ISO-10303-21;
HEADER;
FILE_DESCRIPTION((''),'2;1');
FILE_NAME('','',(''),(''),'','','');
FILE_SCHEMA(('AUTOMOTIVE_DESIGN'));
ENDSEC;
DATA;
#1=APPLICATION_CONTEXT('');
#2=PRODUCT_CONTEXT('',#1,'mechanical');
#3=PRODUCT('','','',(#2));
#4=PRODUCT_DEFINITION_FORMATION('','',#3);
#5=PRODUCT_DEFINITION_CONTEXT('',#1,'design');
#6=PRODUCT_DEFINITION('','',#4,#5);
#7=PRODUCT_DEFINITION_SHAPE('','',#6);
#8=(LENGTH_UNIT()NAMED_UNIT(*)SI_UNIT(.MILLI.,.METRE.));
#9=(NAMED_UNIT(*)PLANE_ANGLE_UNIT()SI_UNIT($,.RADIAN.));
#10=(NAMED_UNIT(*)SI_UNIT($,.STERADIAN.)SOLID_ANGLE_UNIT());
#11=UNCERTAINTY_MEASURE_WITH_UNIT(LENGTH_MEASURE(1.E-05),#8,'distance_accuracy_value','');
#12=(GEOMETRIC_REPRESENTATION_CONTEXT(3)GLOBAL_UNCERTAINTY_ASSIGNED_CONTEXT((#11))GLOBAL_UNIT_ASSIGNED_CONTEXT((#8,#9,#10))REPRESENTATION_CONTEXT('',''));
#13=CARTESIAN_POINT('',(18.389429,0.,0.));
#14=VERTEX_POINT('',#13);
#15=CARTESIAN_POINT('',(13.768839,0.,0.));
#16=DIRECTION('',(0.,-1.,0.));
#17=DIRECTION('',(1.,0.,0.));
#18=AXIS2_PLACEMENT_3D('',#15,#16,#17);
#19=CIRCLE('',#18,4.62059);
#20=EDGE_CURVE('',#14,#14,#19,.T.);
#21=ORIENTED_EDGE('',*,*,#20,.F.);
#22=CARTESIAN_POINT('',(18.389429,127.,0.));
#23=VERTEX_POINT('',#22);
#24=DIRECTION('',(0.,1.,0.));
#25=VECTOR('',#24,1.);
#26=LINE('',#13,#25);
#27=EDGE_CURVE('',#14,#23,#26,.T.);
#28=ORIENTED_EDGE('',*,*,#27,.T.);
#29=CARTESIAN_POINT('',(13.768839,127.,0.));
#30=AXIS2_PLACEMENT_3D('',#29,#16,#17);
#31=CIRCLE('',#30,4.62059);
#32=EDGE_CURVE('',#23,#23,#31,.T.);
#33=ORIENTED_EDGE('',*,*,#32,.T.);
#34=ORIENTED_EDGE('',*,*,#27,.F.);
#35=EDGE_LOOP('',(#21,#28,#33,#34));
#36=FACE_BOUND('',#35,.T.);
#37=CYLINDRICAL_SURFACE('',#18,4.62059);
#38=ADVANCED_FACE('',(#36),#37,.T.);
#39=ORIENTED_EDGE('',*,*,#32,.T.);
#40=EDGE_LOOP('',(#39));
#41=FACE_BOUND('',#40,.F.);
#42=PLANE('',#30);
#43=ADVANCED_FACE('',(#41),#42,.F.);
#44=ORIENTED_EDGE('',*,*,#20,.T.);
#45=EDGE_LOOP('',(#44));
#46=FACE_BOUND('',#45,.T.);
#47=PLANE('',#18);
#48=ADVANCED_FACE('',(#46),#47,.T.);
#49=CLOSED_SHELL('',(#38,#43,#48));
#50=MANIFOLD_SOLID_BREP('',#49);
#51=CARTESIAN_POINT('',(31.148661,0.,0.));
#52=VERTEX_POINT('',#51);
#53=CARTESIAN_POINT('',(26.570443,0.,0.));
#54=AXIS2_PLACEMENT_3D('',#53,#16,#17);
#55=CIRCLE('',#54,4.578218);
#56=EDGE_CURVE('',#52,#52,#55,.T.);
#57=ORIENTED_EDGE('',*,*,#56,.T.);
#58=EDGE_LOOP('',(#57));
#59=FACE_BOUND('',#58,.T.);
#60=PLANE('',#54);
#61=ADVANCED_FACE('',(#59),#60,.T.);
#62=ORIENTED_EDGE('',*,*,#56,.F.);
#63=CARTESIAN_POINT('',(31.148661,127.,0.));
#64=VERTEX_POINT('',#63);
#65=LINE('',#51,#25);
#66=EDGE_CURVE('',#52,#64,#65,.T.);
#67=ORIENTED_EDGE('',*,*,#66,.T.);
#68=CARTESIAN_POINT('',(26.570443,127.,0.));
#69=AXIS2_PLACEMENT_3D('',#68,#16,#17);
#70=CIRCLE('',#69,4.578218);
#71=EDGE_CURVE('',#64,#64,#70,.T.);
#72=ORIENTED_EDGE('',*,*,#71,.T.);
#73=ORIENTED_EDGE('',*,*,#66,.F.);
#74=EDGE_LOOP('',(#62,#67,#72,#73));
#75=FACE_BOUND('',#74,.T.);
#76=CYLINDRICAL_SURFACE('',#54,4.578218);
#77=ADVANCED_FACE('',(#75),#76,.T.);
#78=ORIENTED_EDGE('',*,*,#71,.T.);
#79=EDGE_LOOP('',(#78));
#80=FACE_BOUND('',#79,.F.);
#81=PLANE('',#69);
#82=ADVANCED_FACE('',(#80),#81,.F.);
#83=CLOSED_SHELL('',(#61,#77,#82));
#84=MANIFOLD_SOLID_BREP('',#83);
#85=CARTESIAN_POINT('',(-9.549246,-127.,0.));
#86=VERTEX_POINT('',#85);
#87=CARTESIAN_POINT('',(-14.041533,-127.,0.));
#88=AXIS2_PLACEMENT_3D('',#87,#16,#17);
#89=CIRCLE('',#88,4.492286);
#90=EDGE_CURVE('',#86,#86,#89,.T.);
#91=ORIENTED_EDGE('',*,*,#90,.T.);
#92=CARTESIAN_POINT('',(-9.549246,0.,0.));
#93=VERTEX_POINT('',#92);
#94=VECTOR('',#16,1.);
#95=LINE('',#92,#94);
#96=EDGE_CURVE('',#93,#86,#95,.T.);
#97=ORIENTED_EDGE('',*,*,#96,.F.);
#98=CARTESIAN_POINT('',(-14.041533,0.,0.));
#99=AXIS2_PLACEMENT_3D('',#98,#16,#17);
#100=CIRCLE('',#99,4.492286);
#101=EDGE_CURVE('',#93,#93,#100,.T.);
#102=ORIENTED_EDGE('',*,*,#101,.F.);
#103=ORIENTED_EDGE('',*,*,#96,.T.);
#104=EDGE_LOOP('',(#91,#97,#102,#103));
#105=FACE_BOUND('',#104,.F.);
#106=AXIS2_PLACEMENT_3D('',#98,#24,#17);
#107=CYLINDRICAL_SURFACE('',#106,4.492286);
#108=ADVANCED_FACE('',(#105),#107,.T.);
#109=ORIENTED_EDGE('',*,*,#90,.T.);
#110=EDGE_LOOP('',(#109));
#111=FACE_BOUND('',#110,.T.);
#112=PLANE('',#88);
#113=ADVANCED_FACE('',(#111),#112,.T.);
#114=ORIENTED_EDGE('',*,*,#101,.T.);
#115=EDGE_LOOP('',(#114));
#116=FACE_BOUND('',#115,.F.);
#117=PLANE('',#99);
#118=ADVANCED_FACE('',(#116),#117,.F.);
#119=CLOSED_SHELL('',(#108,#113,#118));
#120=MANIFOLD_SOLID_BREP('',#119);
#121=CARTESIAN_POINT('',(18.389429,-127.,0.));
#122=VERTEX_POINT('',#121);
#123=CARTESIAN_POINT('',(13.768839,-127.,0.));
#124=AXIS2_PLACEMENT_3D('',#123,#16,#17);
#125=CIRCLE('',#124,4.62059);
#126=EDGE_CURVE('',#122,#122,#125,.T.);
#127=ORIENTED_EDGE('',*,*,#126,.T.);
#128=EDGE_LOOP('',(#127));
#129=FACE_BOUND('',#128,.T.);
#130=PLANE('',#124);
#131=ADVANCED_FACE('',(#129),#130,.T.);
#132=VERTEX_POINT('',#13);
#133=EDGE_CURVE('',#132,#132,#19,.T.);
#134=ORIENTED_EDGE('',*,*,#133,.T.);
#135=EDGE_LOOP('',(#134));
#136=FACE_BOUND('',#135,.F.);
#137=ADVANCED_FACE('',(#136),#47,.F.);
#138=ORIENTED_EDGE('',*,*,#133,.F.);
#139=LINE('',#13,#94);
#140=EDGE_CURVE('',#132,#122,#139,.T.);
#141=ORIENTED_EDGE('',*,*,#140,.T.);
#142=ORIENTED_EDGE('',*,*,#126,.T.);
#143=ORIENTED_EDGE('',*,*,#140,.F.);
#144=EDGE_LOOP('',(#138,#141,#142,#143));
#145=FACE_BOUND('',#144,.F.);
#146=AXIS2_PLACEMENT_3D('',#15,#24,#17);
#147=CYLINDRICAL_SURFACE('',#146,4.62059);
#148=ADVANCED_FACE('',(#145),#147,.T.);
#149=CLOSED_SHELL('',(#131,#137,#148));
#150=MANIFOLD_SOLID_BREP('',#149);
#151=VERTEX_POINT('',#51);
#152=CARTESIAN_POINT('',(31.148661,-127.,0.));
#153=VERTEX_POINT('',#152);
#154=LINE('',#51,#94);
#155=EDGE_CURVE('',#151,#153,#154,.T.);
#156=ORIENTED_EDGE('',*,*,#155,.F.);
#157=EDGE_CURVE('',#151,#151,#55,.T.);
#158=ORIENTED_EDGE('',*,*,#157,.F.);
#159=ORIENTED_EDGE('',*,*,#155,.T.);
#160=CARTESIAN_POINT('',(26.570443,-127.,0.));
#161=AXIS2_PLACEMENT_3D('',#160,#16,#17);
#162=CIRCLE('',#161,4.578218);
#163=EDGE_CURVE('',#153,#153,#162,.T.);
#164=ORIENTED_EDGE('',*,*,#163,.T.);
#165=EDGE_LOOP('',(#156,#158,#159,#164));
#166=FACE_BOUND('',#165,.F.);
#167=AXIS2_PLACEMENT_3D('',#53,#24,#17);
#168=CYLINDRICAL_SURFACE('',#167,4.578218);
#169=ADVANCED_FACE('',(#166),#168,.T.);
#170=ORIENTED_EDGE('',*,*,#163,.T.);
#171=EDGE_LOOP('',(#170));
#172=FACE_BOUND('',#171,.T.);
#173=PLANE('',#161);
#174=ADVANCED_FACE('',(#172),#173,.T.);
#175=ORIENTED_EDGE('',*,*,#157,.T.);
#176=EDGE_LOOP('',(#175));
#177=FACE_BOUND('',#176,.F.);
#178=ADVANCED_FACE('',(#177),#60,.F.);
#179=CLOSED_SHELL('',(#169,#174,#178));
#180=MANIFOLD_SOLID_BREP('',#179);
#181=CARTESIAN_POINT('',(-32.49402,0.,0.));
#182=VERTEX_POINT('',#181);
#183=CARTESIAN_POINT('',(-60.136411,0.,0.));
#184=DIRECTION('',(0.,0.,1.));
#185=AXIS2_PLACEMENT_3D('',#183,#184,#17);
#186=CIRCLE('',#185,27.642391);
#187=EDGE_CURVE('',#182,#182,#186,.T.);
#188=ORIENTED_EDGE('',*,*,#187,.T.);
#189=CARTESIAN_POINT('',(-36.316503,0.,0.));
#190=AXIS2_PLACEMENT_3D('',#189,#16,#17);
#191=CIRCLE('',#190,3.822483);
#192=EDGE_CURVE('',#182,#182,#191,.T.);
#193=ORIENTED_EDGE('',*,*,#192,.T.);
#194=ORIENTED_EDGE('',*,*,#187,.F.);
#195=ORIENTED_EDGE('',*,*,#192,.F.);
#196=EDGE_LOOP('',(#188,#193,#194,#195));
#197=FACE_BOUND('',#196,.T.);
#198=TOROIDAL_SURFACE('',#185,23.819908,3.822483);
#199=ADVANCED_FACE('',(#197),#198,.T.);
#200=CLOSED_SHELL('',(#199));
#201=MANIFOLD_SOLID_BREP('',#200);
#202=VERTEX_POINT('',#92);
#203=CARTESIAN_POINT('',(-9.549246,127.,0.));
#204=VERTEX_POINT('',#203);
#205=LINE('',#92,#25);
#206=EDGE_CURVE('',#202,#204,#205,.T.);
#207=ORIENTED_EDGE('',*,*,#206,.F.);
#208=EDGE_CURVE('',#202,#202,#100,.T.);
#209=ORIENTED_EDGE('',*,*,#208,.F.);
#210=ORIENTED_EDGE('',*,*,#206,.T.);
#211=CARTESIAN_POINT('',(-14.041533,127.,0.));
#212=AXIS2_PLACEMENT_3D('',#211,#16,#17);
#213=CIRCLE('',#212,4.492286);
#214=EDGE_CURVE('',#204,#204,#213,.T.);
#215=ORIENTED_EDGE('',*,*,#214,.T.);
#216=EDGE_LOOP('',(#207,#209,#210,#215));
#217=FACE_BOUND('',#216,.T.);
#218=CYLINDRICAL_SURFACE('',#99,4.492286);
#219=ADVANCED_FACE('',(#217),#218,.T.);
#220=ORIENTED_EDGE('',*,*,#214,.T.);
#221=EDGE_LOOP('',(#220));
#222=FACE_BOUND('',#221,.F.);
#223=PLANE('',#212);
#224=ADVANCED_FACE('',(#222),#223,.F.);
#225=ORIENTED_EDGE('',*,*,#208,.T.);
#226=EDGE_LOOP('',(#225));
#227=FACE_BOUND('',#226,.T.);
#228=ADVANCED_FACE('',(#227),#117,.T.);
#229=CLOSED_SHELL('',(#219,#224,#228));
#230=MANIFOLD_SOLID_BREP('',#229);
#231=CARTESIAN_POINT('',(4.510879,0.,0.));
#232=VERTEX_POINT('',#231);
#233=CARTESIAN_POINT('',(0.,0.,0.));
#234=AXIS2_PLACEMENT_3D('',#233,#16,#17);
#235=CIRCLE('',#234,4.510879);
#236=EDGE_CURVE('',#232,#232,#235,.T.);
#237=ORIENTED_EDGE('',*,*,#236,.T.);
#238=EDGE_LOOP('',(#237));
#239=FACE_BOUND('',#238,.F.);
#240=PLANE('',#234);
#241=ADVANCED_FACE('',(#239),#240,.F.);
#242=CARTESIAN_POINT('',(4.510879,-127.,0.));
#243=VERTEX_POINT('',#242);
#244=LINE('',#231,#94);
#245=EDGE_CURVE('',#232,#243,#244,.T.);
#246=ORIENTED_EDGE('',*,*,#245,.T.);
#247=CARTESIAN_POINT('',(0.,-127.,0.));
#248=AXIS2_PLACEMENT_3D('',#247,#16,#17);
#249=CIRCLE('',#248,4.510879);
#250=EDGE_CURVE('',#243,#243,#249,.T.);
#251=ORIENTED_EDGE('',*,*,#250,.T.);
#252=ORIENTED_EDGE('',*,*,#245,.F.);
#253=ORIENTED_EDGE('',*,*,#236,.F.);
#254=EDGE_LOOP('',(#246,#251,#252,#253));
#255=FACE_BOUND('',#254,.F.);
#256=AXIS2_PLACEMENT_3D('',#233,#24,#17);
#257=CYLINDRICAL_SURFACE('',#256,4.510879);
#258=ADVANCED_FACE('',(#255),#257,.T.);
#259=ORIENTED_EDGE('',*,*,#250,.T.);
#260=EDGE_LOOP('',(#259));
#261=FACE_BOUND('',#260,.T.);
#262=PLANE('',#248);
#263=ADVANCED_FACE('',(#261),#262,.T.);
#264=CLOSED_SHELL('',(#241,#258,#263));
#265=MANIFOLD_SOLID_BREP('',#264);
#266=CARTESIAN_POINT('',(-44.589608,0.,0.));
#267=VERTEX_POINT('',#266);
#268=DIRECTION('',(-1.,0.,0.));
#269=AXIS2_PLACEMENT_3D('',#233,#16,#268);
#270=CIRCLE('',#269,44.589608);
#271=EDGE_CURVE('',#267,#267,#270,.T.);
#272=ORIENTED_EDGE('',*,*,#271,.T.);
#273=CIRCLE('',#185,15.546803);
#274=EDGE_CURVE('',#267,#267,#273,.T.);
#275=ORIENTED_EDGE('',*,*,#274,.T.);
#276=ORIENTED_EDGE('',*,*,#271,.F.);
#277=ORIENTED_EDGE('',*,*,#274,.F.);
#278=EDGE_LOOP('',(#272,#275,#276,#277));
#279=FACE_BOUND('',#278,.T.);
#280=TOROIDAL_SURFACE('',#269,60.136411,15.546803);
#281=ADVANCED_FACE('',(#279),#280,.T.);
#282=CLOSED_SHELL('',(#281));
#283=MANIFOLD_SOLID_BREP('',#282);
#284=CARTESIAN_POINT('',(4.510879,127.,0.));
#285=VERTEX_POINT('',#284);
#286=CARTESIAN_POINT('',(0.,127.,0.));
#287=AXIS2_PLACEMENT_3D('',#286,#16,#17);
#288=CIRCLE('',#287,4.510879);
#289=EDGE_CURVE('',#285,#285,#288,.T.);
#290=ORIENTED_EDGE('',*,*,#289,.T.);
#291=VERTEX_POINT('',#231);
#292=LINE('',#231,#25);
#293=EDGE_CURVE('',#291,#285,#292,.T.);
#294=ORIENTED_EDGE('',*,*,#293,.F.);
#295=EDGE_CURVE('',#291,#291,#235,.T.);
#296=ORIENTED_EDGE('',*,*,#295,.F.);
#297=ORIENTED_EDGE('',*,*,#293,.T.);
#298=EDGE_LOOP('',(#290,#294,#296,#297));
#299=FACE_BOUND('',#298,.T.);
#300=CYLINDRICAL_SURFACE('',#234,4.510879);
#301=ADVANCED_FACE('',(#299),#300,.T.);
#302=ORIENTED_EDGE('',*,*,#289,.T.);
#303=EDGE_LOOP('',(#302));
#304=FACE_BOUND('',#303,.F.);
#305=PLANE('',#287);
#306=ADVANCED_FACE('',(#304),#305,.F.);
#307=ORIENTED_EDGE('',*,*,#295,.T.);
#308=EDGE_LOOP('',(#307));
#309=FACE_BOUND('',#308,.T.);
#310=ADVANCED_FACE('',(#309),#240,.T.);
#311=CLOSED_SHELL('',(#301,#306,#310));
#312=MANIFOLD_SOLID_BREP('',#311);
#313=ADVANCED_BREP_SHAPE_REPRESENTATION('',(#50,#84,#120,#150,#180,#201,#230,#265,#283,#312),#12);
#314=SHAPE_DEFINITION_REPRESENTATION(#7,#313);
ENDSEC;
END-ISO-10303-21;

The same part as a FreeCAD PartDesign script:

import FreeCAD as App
import Part
import Sketcher
from FreeCAD import Vector
Q = App.Units.Quantity

doc = App.newDocument("Part")
body = doc.addObject("PartDesign::Body", "Body")

# Sketch on XY plane
sketch1 = body.newObject("Sketcher::SketchObject", "Sketch")
sketch1.AttachmentSupport = (doc.getObject("XY_Plane"), [""])
sketch1.MapMode = "FlatFace"
sketch1.addGeometry(Part.Circle(Vector(-60, 0, 0), Vector(0, 0, 1), 16), False)
sketch1.addConstraint(Sketcher.Constraint("PointOnObject", 0, 3, -1))
sketch1.addConstraint(Sketcher.Constraint("Diameter", 0, 31.093607))
sketch1.addConstraint(Sketcher.Constraint("DistanceX", 0, 3, -1, 1, 60.136411))
revolution = body.newObject("PartDesign::Revolution", "Revolution")
revolution.Profile = sketch1
revolution.ReferenceAxis = (sketch1, ["V_Axis"])
revolution.Angle = 360
body2 = doc.addObject("PartDesign::Body", "Body001")

# Sketch on XZ plane
sketch2 = body2.newObject("Sketcher::SketchObject", "Sketch001")
sketch2.AttachmentSupport = (doc.getObject("XZ_Plane001"), [""])
sketch2.MapMode = "FlatFace"
sketch2.addGeometry(Part.Circle(Vector(-36.3, 0, 0), Vector(0, 0, 1), 3.8), False)
sketch2.addGeometry(Part.LineSegment(Vector(-60.1, 0, 0), Vector(-60.1, 10, 0)), True)  # axis
sketch2.addConstraint(Sketcher.Constraint("Vertical", 1))
sketch2.addConstraint(Sketcher.Constraint("PointOnObject", 0, 3, -1))
sketch2.addConstraint(Sketcher.Constraint("PointOnObject", 1, 1, -1))
sketch2.addConstraint(Sketcher.Constraint("Diameter", 0, 7.644966))
sketch2.addConstraint(Sketcher.Constraint("DistanceY", 1, 1, 1, 2, 10.0))
sketch2.addConstraint(Sketcher.Constraint("DistanceX", 1, 1, -1, 1, 60.136411))
sketch2.addConstraint(Sketcher.Constraint("DistanceX", 1, 1, 0, 3, 23.819908))
revolution2 = body2.newObject("PartDesign::Revolution", "Revolution001")
revolution2.Profile = sketch2
revolution2.ReferenceAxis = (sketch2, ["Axis0"])
revolution2.Angle = 360
body3 = doc.addObject("PartDesign::Body", "Body002")

# Sketch on XZ plane
sketch3 = body3.newObject("Sketcher::SketchObject", "Sketch002")
sketch3.AttachmentSupport = (doc.getObject("XZ_Plane002"), [""])
sketch3.MapMode = "FlatFace"
sketch3.addGeometry(Part.Circle(Vector(-14, 0, 0), Vector(0, 0, 1), 4.5), False)
sketch3.addConstraint(Sketcher.Constraint("PointOnObject", 0, 3, -1))
sketch3.addConstraint(Sketcher.Constraint("Diameter", 0, 8.984573))
sketch3.addConstraint(Sketcher.Constraint("DistanceX", 0, 3, -1, 1, 14.041533))
pad1 = body3.newObject("PartDesign::Pad", "Pad")
pad1.Profile = sketch3
pad1.Length = Q("5 in")
body4 = doc.addObject("PartDesign::Body", "Body003")

# Sketch on XZ plane
sketch4 = body4.newObject("Sketcher::SketchObject", "Sketch003")
sketch4.AttachmentSupport = (doc.getObject("XZ_Plane003"), [""])
sketch4.MapMode = "FlatFace"
sketch4.addGeometry(Part.Circle(Vector(0, 0, 0), Vector(0, 0, 1), 4.5), False)
sketch4.addConstraint(Sketcher.Constraint("Coincident", 0, 3, -1, 1))
sketch4.addConstraint(Sketcher.Constraint("Diameter", 0, 9.021758))
pad2 = body4.newObject("PartDesign::Pad", "Pad001")
pad2.Profile = sketch4
pad2.Length = Q("5 in")
body5 = doc.addObject("PartDesign::Body", "Body004")

# Sketch on XZ plane
sketch5 = body5.newObject("Sketcher::SketchObject", "Sketch004")
sketch5.AttachmentSupport = (doc.getObject("XZ_Plane004"), [""])
sketch5.MapMode = "FlatFace"
sketch5.addGeometry(Part.Circle(Vector(13.8, 0, 0), Vector(0, 0, 1), 4.6), False)
sketch5.addConstraint(Sketcher.Constraint("PointOnObject", 0, 3, -1))
sketch5.addConstraint(Sketcher.Constraint("Diameter", 0, 9.24118))
sketch5.addConstraint(Sketcher.Constraint("DistanceX", -1, 1, 0, 3, 13.768839))
pad3 = body5.newObject("PartDesign::Pad", "Pad002")
pad3.Profile = sketch5
pad3.Length = Q("5 in")
body6 = doc.addObject("PartDesign::Body", "Body005")

# Sketch on XZ plane
sketch6 = body6.newObject("Sketcher::SketchObject", "Sketch005")
sketch6.AttachmentSupport = (doc.getObject("XZ_Plane005"), [""])
sketch6.MapMode = "FlatFace"
sketch6.addGeometry(Part.Circle(Vector(26.6, 0, 0), Vector(0, 0, 1), 4.6), False)
sketch6.addConstraint(Sketcher.Constraint("PointOnObject", 0, 3, -1))
sketch6.addConstraint(Sketcher.Constraint("Diameter", 0, 9.156436))
sketch6.addConstraint(Sketcher.Constraint("DistanceX", -1, 1, 0, 3, 26.570443))
pad4 = body6.newObject("PartDesign::Pad", "Pad003")
pad4.Profile = sketch6
pad4.Length = Q("5 in")
body7 = doc.addObject("PartDesign::Body", "Body006")

# Sketch on XZ plane
sketch7 = body7.newObject("Sketcher::SketchObject", "Sketch006")
sketch7.AttachmentSupport = (doc.getObject("XZ_Plane006"), [""])
sketch7.MapMode = "FlatFace"
sketch7.addGeometry(Part.Circle(Vector(-14, 0, 0), Vector(0, 0, 1), 4.5), False)
sketch7.addConstraint(Sketcher.Constraint("PointOnObject", 0, 3, -1))
sketch7.addConstraint(Sketcher.Constraint("Diameter", 0, 8.984573))
sketch7.addConstraint(Sketcher.Constraint("DistanceX", 0, 3, -1, 1, 14.041533))
pad5 = body7.newObject("PartDesign::Pad", "Pad004")
pad5.Profile = sketch7
pad5.Length = Q("5 in")
pad5.Reversed = True
body8 = doc.addObject("PartDesign::Body", "Body007")

# Sketch on XZ plane
sketch8 = body8.newObject("Sketcher::SketchObject", "Sketch007")
sketch8.AttachmentSupport = (doc.getObject("XZ_Plane007"), [""])
sketch8.MapMode = "FlatFace"
sketch8.addGeometry(Part.Circle(Vector(0, 0, 0), Vector(0, 0, 1), 4.5), False)
sketch8.addConstraint(Sketcher.Constraint("Coincident", 0, 3, -1, 1))
sketch8.addConstraint(Sketcher.Constraint("Diameter", 0, 9.021758))
pad6 = body8.newObject("PartDesign::Pad", "Pad005")
pad6.Profile = sketch8
pad6.Length = Q("5 in")
pad6.Reversed = True
body9 = doc.addObject("PartDesign::Body", "Body008")

# Sketch on XZ plane
sketch9 = body9.newObject("Sketcher::SketchObject", "Sketch008")
sketch9.AttachmentSupport = (doc.getObject("XZ_Plane008"), [""])
sketch9.MapMode = "FlatFace"
sketch9.addGeometry(Part.Circle(Vector(13.8, 0, 0), Vector(0, 0, 1), 4.6), False)
sketch9.addConstraint(Sketcher.Constraint("PointOnObject", 0, 3, -1))
sketch9.addConstraint(Sketcher.Constraint("Diameter", 0, 9.24118))
sketch9.addConstraint(Sketcher.Constraint("DistanceX", -1, 1, 0, 3, 13.768839))
pad7 = body9.newObject("PartDesign::Pad", "Pad006")
pad7.Profile = sketch9
pad7.Length = Q("5 in")
pad7.Reversed = True
body10 = doc.addObject("PartDesign::Body", "Body009")

# Sketch on XZ plane
sketch10 = body10.newObject("Sketcher::SketchObject", "Sketch009")
sketch10.AttachmentSupport = (doc.getObject("XZ_Plane009"), [""])
sketch10.MapMode = "FlatFace"
sketch10.addGeometry(Part.Circle(Vector(26.6, 0, 0), Vector(0, 0, 1), 4.6), False)
sketch10.addConstraint(Sketcher.Constraint("PointOnObject", 0, 3, -1))
sketch10.addConstraint(Sketcher.Constraint("Diameter", 0, 9.156436))
sketch10.addConstraint(Sketcher.Constraint("DistanceX", -1, 1, 0, 3, 26.570443))
pad8 = body10.newObject("PartDesign::Pad", "Pad007")
pad8.Profile = sketch10
pad8.Length = Q("5 in")
pad8.Reversed = True

doc.recompute()
